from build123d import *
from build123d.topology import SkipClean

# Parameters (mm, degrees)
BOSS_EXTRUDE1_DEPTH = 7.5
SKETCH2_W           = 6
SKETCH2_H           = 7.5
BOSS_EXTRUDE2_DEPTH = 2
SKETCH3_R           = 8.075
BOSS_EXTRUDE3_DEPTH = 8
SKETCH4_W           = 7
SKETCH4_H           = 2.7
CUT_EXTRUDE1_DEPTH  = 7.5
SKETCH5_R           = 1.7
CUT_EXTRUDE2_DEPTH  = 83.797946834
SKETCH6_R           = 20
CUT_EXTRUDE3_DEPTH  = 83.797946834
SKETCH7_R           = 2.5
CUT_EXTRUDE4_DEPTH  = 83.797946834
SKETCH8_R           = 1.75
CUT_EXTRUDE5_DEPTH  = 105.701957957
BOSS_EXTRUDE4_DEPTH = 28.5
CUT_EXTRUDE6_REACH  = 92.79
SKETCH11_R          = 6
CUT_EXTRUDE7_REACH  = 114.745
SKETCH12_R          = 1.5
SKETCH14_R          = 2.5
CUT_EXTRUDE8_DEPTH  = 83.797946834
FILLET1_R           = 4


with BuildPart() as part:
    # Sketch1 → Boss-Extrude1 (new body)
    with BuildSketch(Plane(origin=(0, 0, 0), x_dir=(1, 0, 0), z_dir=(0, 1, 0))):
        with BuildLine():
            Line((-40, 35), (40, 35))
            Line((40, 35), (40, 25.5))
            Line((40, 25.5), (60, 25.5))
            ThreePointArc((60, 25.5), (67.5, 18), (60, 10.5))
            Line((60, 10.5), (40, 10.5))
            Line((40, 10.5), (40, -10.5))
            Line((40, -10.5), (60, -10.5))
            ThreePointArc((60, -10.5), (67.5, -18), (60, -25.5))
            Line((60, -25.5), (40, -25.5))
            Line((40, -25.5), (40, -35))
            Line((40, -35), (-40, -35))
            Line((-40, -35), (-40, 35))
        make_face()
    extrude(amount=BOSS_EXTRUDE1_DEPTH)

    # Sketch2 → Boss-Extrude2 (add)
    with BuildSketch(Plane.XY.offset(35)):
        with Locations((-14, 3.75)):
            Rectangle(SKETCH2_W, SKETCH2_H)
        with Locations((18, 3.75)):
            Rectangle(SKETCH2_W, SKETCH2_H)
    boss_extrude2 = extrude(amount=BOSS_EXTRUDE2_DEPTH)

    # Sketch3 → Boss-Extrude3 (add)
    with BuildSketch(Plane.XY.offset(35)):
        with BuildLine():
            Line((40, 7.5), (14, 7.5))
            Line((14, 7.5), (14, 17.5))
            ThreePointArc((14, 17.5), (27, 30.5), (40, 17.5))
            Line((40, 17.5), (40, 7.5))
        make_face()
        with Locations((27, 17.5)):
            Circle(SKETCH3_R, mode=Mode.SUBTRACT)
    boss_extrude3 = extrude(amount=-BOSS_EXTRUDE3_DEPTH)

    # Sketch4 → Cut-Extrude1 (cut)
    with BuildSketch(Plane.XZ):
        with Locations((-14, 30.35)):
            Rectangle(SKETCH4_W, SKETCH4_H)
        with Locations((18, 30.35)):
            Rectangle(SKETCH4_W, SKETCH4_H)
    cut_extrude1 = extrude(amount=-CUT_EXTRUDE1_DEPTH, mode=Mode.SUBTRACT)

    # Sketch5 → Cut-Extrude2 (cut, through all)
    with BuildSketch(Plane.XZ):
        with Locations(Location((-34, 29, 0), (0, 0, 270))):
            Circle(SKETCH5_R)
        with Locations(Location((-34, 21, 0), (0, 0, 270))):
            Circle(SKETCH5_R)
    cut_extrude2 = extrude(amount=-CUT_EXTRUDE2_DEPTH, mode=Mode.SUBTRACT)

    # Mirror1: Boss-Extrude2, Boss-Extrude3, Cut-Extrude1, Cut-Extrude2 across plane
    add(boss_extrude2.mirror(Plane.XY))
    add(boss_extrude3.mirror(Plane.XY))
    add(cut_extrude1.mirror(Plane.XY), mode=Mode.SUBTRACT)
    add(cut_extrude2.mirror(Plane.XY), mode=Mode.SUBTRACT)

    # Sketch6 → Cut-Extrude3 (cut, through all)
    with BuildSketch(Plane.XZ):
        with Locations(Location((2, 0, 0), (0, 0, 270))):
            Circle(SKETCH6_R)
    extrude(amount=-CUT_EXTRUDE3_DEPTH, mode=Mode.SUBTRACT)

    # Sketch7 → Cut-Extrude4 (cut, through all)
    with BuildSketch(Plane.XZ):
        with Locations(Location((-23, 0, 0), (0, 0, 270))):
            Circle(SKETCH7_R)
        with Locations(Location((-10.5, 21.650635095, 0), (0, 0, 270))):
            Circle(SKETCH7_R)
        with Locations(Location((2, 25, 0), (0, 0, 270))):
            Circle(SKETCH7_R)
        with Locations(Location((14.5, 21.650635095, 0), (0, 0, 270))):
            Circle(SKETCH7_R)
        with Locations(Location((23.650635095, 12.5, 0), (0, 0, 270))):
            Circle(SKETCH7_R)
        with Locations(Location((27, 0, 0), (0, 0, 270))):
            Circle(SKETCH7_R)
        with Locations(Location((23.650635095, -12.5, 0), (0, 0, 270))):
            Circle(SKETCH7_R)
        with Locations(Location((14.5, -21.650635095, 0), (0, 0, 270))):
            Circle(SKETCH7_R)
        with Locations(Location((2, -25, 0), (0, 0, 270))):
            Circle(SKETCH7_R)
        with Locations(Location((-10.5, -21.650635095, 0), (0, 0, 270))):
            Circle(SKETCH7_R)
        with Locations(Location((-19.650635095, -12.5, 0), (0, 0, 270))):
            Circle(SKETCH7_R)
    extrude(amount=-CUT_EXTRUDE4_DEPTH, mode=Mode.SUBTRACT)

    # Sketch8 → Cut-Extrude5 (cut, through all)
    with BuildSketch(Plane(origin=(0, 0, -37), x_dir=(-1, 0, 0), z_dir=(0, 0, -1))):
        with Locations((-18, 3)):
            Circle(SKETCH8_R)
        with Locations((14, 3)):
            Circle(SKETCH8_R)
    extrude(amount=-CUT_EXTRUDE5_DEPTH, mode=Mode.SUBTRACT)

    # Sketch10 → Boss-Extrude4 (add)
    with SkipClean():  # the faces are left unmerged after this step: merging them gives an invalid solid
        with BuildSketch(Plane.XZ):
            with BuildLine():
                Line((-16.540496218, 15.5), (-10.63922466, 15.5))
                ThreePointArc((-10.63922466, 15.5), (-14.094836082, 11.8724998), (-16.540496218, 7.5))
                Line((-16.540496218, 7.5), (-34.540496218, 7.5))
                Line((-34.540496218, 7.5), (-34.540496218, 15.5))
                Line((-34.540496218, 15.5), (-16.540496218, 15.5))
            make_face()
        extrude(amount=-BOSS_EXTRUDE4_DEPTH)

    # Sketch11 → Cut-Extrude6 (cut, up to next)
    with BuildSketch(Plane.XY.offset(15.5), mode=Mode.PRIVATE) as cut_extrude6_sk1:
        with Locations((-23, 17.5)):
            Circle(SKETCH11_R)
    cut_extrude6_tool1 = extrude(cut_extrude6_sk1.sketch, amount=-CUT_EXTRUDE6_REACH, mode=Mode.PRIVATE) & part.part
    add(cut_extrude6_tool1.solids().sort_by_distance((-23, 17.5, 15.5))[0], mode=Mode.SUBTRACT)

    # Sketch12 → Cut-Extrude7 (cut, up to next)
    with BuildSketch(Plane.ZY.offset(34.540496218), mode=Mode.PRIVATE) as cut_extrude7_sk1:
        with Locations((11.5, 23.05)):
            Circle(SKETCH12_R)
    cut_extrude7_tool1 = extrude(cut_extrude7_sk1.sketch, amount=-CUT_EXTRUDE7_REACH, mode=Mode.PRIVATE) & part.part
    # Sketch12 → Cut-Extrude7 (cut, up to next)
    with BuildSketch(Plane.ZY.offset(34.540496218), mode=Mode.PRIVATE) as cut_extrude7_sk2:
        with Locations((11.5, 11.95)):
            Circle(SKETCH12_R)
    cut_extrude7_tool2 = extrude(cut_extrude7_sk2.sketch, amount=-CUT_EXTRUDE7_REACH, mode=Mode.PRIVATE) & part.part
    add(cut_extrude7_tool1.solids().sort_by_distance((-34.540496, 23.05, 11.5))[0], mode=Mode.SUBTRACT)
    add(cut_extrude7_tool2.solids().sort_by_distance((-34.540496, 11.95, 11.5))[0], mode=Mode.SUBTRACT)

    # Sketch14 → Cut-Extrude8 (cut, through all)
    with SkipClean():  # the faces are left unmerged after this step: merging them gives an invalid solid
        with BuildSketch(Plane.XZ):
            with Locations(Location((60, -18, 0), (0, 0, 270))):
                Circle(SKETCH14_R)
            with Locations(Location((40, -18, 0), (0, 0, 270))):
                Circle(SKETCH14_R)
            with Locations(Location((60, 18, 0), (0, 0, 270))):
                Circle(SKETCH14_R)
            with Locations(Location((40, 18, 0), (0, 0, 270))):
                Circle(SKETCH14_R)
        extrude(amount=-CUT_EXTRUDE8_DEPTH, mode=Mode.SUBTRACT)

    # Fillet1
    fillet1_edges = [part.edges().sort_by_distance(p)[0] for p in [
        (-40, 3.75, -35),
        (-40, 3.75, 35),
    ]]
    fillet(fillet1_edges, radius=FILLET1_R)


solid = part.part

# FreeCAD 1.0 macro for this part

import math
import FreeCAD as App
import Part
import Sketcher
from FreeCAD import Vector


def edges_at(feature, points):
    """Names of the edges that pass closest to the given points."""
    edges = feature.Shape.Edges
    near = lambda p: min(range(len(edges)), key=lambda i: edges[i].distToShape(Part.Vertex(*p))[0])
    return sorted({f"Edge{near(p) + 1}" for p in points})


def add_polygon(sketch, points):
    """Adds a closed chain of lines whose ends are joined by coincident constraints."""
    first, n = sketch.GeometryCount, len(points)
    for a, b in zip(points, points[1:] + points[:1]):
        sketch.addGeometry(Part.LineSegment(App.Vector(*a, 0), App.Vector(*b, 0)), False)
    for i in range(n):
        sketch.addConstraint(Sketcher.Constraint("Coincident", first + i, 2, first + (i + 1) % n, 1))

doc = App.newDocument("Part")
params = doc.addObject("Spreadsheet::Sheet", "Params")
for row, (alias, value) in enumerate([
    ("sketch1_radius", "7.5 mm"),
    ("sketch1_width", "80 mm"),
    ("sketch1_width2", "20 mm"),
    ("sketch1_height", "70 mm"),
    ("sketch1_height2", "21 mm"),
    ("pad1_length", "7.5 mm"),
    ("sketch2_width", "6 mm"),
    ("sketch2_height", "7.5 mm"),
    ("pad2_length", "2 mm"),
    ("sketch3_radius", "13 mm"),
    ("sketch3_diameter", "16.15 mm"),
    ("sketch3_height", "10 mm"),
    ("pad3_length", "8 mm"),
    ("sketch4_width", "7 mm"),
    ("sketch4_height", "2.7 mm"),
    ("pocket1_length", "7.5 mm"),
    ("sketch5_diameter", "3.4 mm"),
    ("sketch6_diameter", "40 mm"),
    ("sketch7_diameter", "5 mm"),
    ("sketch8_diameter", "3.5 mm"),
    ("sketch9_radius", "20 mm"),
    ("sketch9_width", "18 mm"),
    ("sketch9_height", "8 mm"),
    ("pad4_length", "28.5 mm"),
    ("sketch10_diameter", "12 mm"),
    ("sketch11_diameter", "3 mm"),
    ("pocket7_length", "21.341812 mm"),
    ("sketch12_diameter", "3 mm"),
    ("pocket8_length", "21.341812 mm"),
    ("sketch13_diameter", "5 mm"),
    ("fillet_radius", "4 mm"),
], start=1):
    params.set(f"A{row}", alias)
    params.set(f"B{row}", "=" + value)
    params.setAlias(f"B{row}", alias)

body = doc.addObject("PartDesign::Body", "Body")

# Sketch on XZ plane
sketch1 = body.newObject("Sketcher::SketchObject", "Sketch")
sketch1.AttachmentSupport = (doc.getObject("XZ_Plane"), [""])
sketch1.MapMode = "FlatFace"
sketch1.addGeometry([
    Part.LineSegment(Vector(40, -35, 0), Vector(-40, -35, 0)),  # 0
    Part.LineSegment(Vector(-40, -35, 0), Vector(-40, 35, 0)),  # 1
    Part.LineSegment(Vector(-40, 35, 0), Vector(40, 35, 0)),  # 2
    Part.LineSegment(Vector(40, 35, 0), Vector(40, 26, 0)),  # 3
    Part.LineSegment(Vector(40, 26, 0), Vector(60, 26, 0)),  # 4
    Part.ArcOfCircle(Part.Circle(Vector(60, 18, 0), Vector(0, 0, 1), 8), math.radians(-90), math.radians(90)),  # 5
    Part.LineSegment(Vector(60, 10, 0), Vector(40, 10, 0)),  # 6
    Part.LineSegment(Vector(40, 10, 0), Vector(40, -10, 0)),  # 7
    Part.LineSegment(Vector(40, -10, 0), Vector(60, -10, 0)),  # 8
    Part.ArcOfCircle(Part.Circle(Vector(60, -18, 0), Vector(0, 0, 1), 8), math.radians(-90), math.radians(90)),  # 9
    Part.LineSegment(Vector(60, -26, 0), Vector(40, -26, 0)),  # 10
    Part.LineSegment(Vector(40, -26, 0), Vector(40, -35, 0)),  # 11
], False)
sketch1.addConstraint([
    Sketcher.Constraint("Coincident", 0, 2, 1, 1),
    Sketcher.Constraint("Coincident", 1, 2, 2, 1),
    Sketcher.Constraint("Coincident", 2, 2, 3, 1),
    Sketcher.Constraint("Coincident", 3, 2, 4, 1),
    Sketcher.Constraint("Tangent", 4, 2, 5, 2),
    Sketcher.Constraint("Tangent", 5, 1, 6, 1),
    Sketcher.Constraint("Coincident", 6, 2, 7, 1),
    Sketcher.Constraint("Coincident", 7, 2, 8, 1),
    Sketcher.Constraint("Tangent", 8, 2, 9, 2),
    Sketcher.Constraint("Tangent", 9, 1, 10, 1),
    Sketcher.Constraint("Coincident", 10, 2, 11, 1),
    Sketcher.Constraint("Coincident", 11, 2, 0, 1),
    Sketcher.Constraint("Horizontal", 0),
    Sketcher.Constraint("Vertical", 1),
    Sketcher.Constraint("Horizontal", 2),
    Sketcher.Constraint("Vertical", 3),
    Sketcher.Constraint("Horizontal", 4),
    Sketcher.Constraint("Horizontal", 6),
    Sketcher.Constraint("Vertical", 7),
    Sketcher.Constraint("Horizontal", 8),
    Sketcher.Constraint("Horizontal", 10),
    Sketcher.Constraint("Vertical", 11),
    Sketcher.Constraint("Equal", 5, 9),
    Sketcher.Constraint("Symmetric", 0, 2, 2, 2, -1, 1),
    Sketcher.Constraint("Symmetric", 5, 3, 9, 3, -1),
    Sketcher.Constraint("Vertical", 3, 2, 6, 2),
    Sketcher.Constraint("Vertical", 7, 2, 10, 2),
    Sketcher.Constraint("Radius", 5, 7.5),
    Sketcher.Constraint("DistanceX", 0, 2, 0, 1, 80.0),
    Sketcher.Constraint("DistanceX", 4, 1, 4, 2, 20.0),
    Sketcher.Constraint("DistanceY", 1, 1, 1, 2, 70.0),
    Sketcher.Constraint("DistanceY", 7, 2, 7, 1, 21.0),
])
sketch1.setExpression("Constraints[27]", "Params.sketch1_radius")
sketch1.setExpression("Constraints[28]", "Params.sketch1_width")
sketch1.setExpression("Constraints[29]", "Params.sketch1_width2")
sketch1.setExpression("Constraints[30]", "Params.sketch1_height")
sketch1.setExpression("Constraints[31]", "Params.sketch1_height2")
pad1 = body.newObject("PartDesign::Pad", "Pad")
pad1.Profile = sketch1
pad1.setExpression("Length", "Params.pad1_length")
pad1.Reversed = True

# Sketch on XY plane
sketch2 = body.newObject("Sketcher::SketchObject", "Sketch001")
sketch2.AttachmentSupport = (doc.getObject("XY_Plane"), [""])
sketch2.MapMode = "FlatFace"
sketch2.AttachmentOffset = App.Placement(Vector(0, 0, 35), App.Rotation())
add_polygon(sketch2, [(-17, 8), (-17, 0), (-11, 0), (-11, 8)])  # lines 0-3
add_polygon(sketch2, [(15, 8), (15, 0), (21, 0), (21, 8)])  # lines 4-7
sketch2.addConstraint([
    Sketcher.Constraint("Vertical", 0),
    Sketcher.Constraint("Horizontal", 1),
    Sketcher.Constraint("Vertical", 2),
    Sketcher.Constraint("Horizontal", 3),
    Sketcher.Constraint("Vertical", 4),
    Sketcher.Constraint("Horizontal", 5),
    Sketcher.Constraint("Vertical", 6),
    Sketcher.Constraint("Horizontal", 7),
    Sketcher.Constraint("PointOnObject", 0, 2, -1),
    Sketcher.Constraint("PointOnObject", 4, 2, -1),
    Sketcher.Constraint("Horizontal", 3, 2, 6, 2),
    Sketcher.Constraint("Equal", 3, 5),
    Sketcher.Constraint("DistanceX", 1, 1, 1, 2, 6.0),
    Sketcher.Constraint("DistanceY", 0, 2, 0, 1, 7.5),
    Sketcher.Constraint("DistanceX", 0, 2, -1, 1, 17.0),
    Sketcher.Constraint("DistanceX", -1, 1, 4, 2, 15.0),
])
sketch2.setExpression("Constraints[20]", "Params.sketch2_width")
sketch2.setExpression("Constraints[21]", "Params.sketch2_height")
pad2 = body.newObject("PartDesign::Pad", "Pad001")
pad2.Profile = sketch2
pad2.setExpression("Length", "Params.pad2_length")

# Sketch on XY plane
sketch3 = body.newObject("Sketcher::SketchObject", "Sketch002")
sketch3.AttachmentSupport = (doc.getObject("XY_Plane"), [""])
sketch3.MapMode = "FlatFace"
sketch3.AttachmentOffset = App.Placement(Vector(0, 0, 35), App.Rotation())
sketch3.addGeometry([
    Part.LineSegment(Vector(14, 8, 0), Vector(40, 8, 0)),  # 0
    Part.LineSegment(Vector(40, 8, 0), Vector(40, 18, 0)),  # 1
    Part.ArcOfCircle(Part.Circle(Vector(27, 18, 0), Vector(0, 0, 1), 13), math.radians(0), math.radians(180)),  # 2
    Part.LineSegment(Vector(14, 18, 0), Vector(14, 8, 0)),  # 3
    Part.Circle(Vector(27, 18, 0), Vector(0, 0, 1), 8),  # 4
], False)
sketch3.addConstraint([
    Sketcher.Constraint("Coincident", 0, 2, 1, 1),
    Sketcher.Constraint("Tangent", 1, 2, 2, 1),
    Sketcher.Constraint("Tangent", 2, 2, 3, 1),
    Sketcher.Constraint("Coincident", 3, 2, 0, 1),
    Sketcher.Constraint("Horizontal", 0),
    Sketcher.Constraint("Vertical", 1),
    Sketcher.Constraint("Vertical", 3),
    Sketcher.Constraint("Coincident", 4, 3, 2, 3),
    Sketcher.Constraint("Radius", 2, 13.0),
    Sketcher.Constraint("Diameter", 4, 16.15),
    Sketcher.Constraint("DistanceY", 1, 1, 1, 2, 10.0),
    Sketcher.Constraint("DistanceX", -1, 1, 2, 3, 27.0),
    Sketcher.Constraint("DistanceY", -1, 1, 2, 3, 17.5),
])
sketch3.setExpression("Constraints[8]", "Params.sketch3_radius")
sketch3.setExpression("Constraints[9]", "Params.sketch3_diameter")
sketch3.setExpression("Constraints[10]", "Params.sketch3_height")
pad3 = body.newObject("PartDesign::Pad", "Pad002")
pad3.Profile = sketch3
pad3.setExpression("Length", "Params.pad3_length")
pad3.Reversed = True

# Sketch on XZ plane
sketch4 = body.newObject("Sketcher::SketchObject", "Sketch003")
sketch4.AttachmentSupport = (doc.getObject("XZ_Plane"), [""])
sketch4.MapMode = "FlatFace"
add_polygon(sketch4, [(-17.5, 31.7), (-17.5, 29), (-10.5, 29), (-10.5, 31.7)])  # lines 0-3
add_polygon(sketch4, [(14.5, 31.7), (14.5, 29), (21.5, 29), (21.5, 31.7)])  # lines 4-7
sketch4.addConstraint([
    Sketcher.Constraint("Vertical", 0),
    Sketcher.Constraint("Horizontal", 1),
    Sketcher.Constraint("Vertical", 2),
    Sketcher.Constraint("Horizontal", 3),
    Sketcher.Constraint("Vertical", 4),
    Sketcher.Constraint("Horizontal", 5),
    Sketcher.Constraint("Vertical", 6),
    Sketcher.Constraint("Horizontal", 7),
    Sketcher.Constraint("Horizontal", 1, 2, 4, 2),
    Sketcher.Constraint("Horizontal", 3, 2, 6, 2),
    Sketcher.Constraint("Equal", 3, 5),
    Sketcher.Constraint("DistanceX", 1, 1, 1, 2, 7.0),
    Sketcher.Constraint("DistanceY", 0, 2, 0, 1, 2.7),
    Sketcher.Constraint("DistanceY", -1, 1, 0, 2, 29.0),
    Sketcher.Constraint("DistanceX", 1, 2, 4, 2, 25.0),
    Sketcher.Constraint("DistanceX", 0, 2, -1, 1, 17.5),
])
sketch4.setExpression("Constraints[19]", "Params.sketch4_width")
sketch4.setExpression("Constraints[20]", "Params.sketch4_height")
pocket1 = body.newObject("PartDesign::Pocket", "Pocket")
pocket1.Profile = sketch4
pocket1.setExpression("Length", "Params.pocket1_length")

# Sketch on XZ plane
sketch5 = body.newObject("Sketcher::SketchObject", "Sketch004")
sketch5.AttachmentSupport = (doc.getObject("XZ_Plane"), [""])
sketch5.MapMode = "FlatFace"
sketch5.addGeometry([
    Part.Circle(Vector(-34, 29, 0), Vector(0, 0, 1), 1.7),
    Part.Circle(Vector(-34, 21, 0), Vector(0, 0, 1), 1.7),
], False)
sketch5.addConstraint([
    Sketcher.Constraint("Equal", 0, 1),
    Sketcher.Constraint("Vertical", 0, 3, 1, 3),
    Sketcher.Constraint("Diameter", 0, 3.4),
    Sketcher.Constraint("DistanceX", 0, 3, -1, 1, 34.0),
    Sketcher.Constraint("DistanceY", -1, 1, 0, 3, 29.0),
    Sketcher.Constraint("DistanceY", -1, 1, 1, 3, 21.0),
])
sketch5.setExpression("Constraints[2]", "Params.sketch5_diameter")
pocket2 = body.newObject("PartDesign::Pocket", "Pocket001")
pocket2.Profile = sketch5
pocket2.Type = "ThroughAll"
doc.recompute()

mirrored = body.newObject("PartDesign::Mirrored", "Mirrored")
mirrored.Originals = [pad2, pad3, pocket1, pocket2]
mirrored.MirrorPlane = (doc.getObject("XY_Plane"), [""])
body.Tip = mirrored

# Sketch on XZ plane
sketch6 = body.newObject("Sketcher::SketchObject", "Sketch005")
sketch6.AttachmentSupport = (doc.getObject("XZ_Plane"), [""])
sketch6.MapMode = "FlatFace"
sketch6.addGeometry(Part.Circle(Vector(2, 0, 0), Vector(0, 0, 1), 20), False)
sketch6.addConstraint([
    Sketcher.Constraint("PointOnObject", 0, 3, -1),
    Sketcher.Constraint("Diameter", 0, 40.0),
    Sketcher.Constraint("DistanceX", -1, 1, 0, 3, 2.0),
])
sketch6.setExpression("Constraints[1]", "Params.sketch6_diameter")
pocket3 = body.newObject("PartDesign::Pocket", "Pocket002")
pocket3.Profile = sketch6
pocket3.Type = "ThroughAll"

# Sketch on XZ plane
sketch7 = body.newObject("Sketcher::SketchObject", "Sketch006")
sketch7.AttachmentSupport = (doc.getObject("XZ_Plane"), [""])
sketch7.MapMode = "FlatFace"
sketch7.addGeometry([
    Part.Circle(Vector(-23, 0, 0), Vector(0, 0, 1), 2.5),  # 0
    Part.Circle(Vector(-10.5, 21.7, 0), Vector(0, 0, 1), 2.5),  # 1
    Part.Circle(Vector(2, 25, 0), Vector(0, 0, 1), 2.5),  # 2
    Part.Circle(Vector(14.5, 21.7, 0), Vector(0, 0, 1), 2.5),  # 3
    Part.Circle(Vector(23.7, 12.5, 0), Vector(0, 0, 1), 2.5),  # 4
    Part.Circle(Vector(27, 0, 0), Vector(0, 0, 1), 2.5),  # 5
    Part.Circle(Vector(23.7, -12.5, 0), Vector(0, 0, 1), 2.5),  # 6
    Part.Circle(Vector(14.5, -21.7, 0), Vector(0, 0, 1), 2.5),  # 7
    Part.Circle(Vector(2, -25, 0), Vector(0, 0, 1), 2.5),  # 8
    Part.Circle(Vector(-10.5, -21.7, 0), Vector(0, 0, 1), 2.5),  # 9
    Part.Circle(Vector(-19.7, -12.5, 0), Vector(0, 0, 1), 2.5),  # 10
], False)
sketch7.addConstraint([
    Sketcher.Constraint("Equal", 0, 1),
    Sketcher.Constraint("Equal", 1, 2),
    Sketcher.Constraint("Equal", 2, 3),
    Sketcher.Constraint("Equal", 3, 4),
    Sketcher.Constraint("Equal", 4, 5),
    Sketcher.Constraint("Equal", 5, 6),
    Sketcher.Constraint("Equal", 6, 7),
    Sketcher.Constraint("Equal", 7, 8),
    Sketcher.Constraint("Equal", 8, 9),
    Sketcher.Constraint("Equal", 9, 10),
    Sketcher.Constraint("Symmetric", 4, 3, 6, 3, -1),
    Sketcher.Constraint("Symmetric", 3, 3, 7, 3, -1),
    Sketcher.Constraint("Symmetric", 2, 3, 8, 3, -1),
    Sketcher.Constraint("Symmetric", 1, 3, 9, 3, -1),
    Sketcher.Constraint("PointOnObject", 0, 3, -1),
    Sketcher.Constraint("PointOnObject", 5, 3, -1),
    Sketcher.Constraint("Horizontal", 1, 3, 3, 3),
    Sketcher.Constraint("Horizontal", 6, 3, 10, 3),
    Sketcher.Constraint("Diameter", 0, 5.0),
    Sketcher.Constraint("DistanceX", 0, 3, -1, 1, 23.0),
    Sketcher.Constraint("DistanceX", -1, 1, 2, 3, 2.0),
    Sketcher.Constraint("DistanceY", -1, 1, 2, 3, 25.0),
    Sketcher.Constraint("DistanceX", -1, 1, 5, 3, 27.0),
    Sketcher.Constraint("DistanceX", 1, 3, 3, 3, 25.0),
    Sketcher.Constraint("DistanceY", 6, 3, 4, 3, 25.0),
    Sketcher.Constraint("DistanceX", 1, 3, -1, 1, 10.5),
    Sketcher.Constraint("DistanceY", 7, 3, 3, 3, 43.30127),
    Sketcher.Constraint("DistanceX", -1, 1, 4, 3, 23.650635),
    Sketcher.Constraint("DistanceX", 10, 3, -1, 1, 19.650635),
])
sketch7.setExpression("Constraints[18]", "Params.sketch7_diameter")
pocket4 = body.newObject("PartDesign::Pocket", "Pocket003")
pocket4.Profile = sketch7
pocket4.Type = "ThroughAll"

# Sketch on XY plane
sketch8 = body.newObject("Sketcher::SketchObject", "Sketch007")
sketch8.AttachmentSupport = (doc.getObject("XY_Plane"), [""])
sketch8.MapMode = "FlatFace"
sketch8.AttachmentOffset = App.Placement(Vector(0, 0, -37), App.Rotation())
sketch8.addGeometry([
    Part.Circle(Vector(18, 3, 0), Vector(0, 0, 1), 1.8),
    Part.Circle(Vector(-14, 3, 0), Vector(0, 0, 1), 1.8),
], False)
sketch8.addConstraint([
    Sketcher.Constraint("Equal", 0, 1),
    Sketcher.Constraint("Horizontal", 0, 3, 1, 3),
    Sketcher.Constraint("Diameter", 0, 3.5),
    Sketcher.Constraint("DistanceX", -1, 1, 0, 3, 18.0),
    Sketcher.Constraint("DistanceY", -1, 1, 0, 3, 3.0),
    Sketcher.Constraint("DistanceX", 1, 3, -1, 1, 14.0),
])
sketch8.setExpression("Constraints[2]", "Params.sketch8_diameter")
pocket5 = body.newObject("PartDesign::Pocket", "Pocket004")
pocket5.Profile = sketch8
pocket5.Type = "ThroughAll"
pocket5.Reversed = True

# Sketch on XZ plane
sketch9 = body.newObject("Sketcher::SketchObject", "Sketch008")
sketch9.AttachmentSupport = (doc.getObject("XZ_Plane"), [""])
sketch9.MapMode = "FlatFace"
sketch9.addGeometry([
    Part.LineSegment(Vector(-11, 16, 0), Vector(-35, 16, 0)),
    Part.LineSegment(Vector(-35, 16, 0), Vector(-35, 8, 0)),
    Part.LineSegment(Vector(-35, 8, 0), Vector(-17, 8, 0)),
    Part.ArcOfCircle(Part.Circle(Vector(2, 0, 0), Vector(0, 0, 1), 20), math.radians(129), math.radians(158)),
], False)
sketch9.addConstraint([
    Sketcher.Constraint("Coincident", 0, 2, 1, 1),
    Sketcher.Constraint("Coincident", 1, 2, 2, 1),
    Sketcher.Constraint("Coincident", 2, 2, 3, 2),
    Sketcher.Constraint("Coincident", 3, 1, 0, 1),
    Sketcher.Constraint("Horizontal", 0),
    Sketcher.Constraint("Vertical", 1),
    Sketcher.Constraint("Horizontal", 2),
    Sketcher.Constraint("PointOnObject", 3, 3, -1),
    Sketcher.Constraint("Radius", 3, 20.0),
    Sketcher.Constraint("DistanceX", 2, 1, 2, 2, 18.0),
    Sketcher.Constraint("DistanceY", 1, 2, 1, 1, 8.0),
    Sketcher.Constraint("DistanceX", -1, 1, 3, 3, 2.0),
    Sketcher.Constraint("DistanceY", -1, 1, 0, 2, 15.5),
])
sketch9.setExpression("Constraints[8]", "Params.sketch9_radius")
sketch9.setExpression("Constraints[9]", "Params.sketch9_width")
sketch9.setExpression("Constraints[10]", "Params.sketch9_height")
pad4 = body.newObject("PartDesign::Pad", "Pad003")
pad4.Profile = sketch9
pad4.setExpression("Length", "Params.pad4_length")
pad4.Reversed = True

# Sketch on XY plane
sketch10 = body.newObject("Sketcher::SketchObject", "Sketch009")
sketch10.AttachmentSupport = (doc.getObject("XY_Plane"), [""])
sketch10.MapMode = "FlatFace"
sketch10.AttachmentOffset = App.Placement(Vector(0, 0, 15.5), App.Rotation())
sketch10.addGeometry(Part.Circle(Vector(-23, 18, 0), Vector(0, 0, 1), 6), False)
sketch10.addConstraint([
    Sketcher.Constraint("Diameter", 0, 12.0),
    Sketcher.Constraint("DistanceX", 0, 3, -1, 1, 23.0),
    Sketcher.Constraint("DistanceY", -1, 1, 0, 3, 17.5),
])
sketch10.setExpression("Constraints[0]", "Params.sketch10_diameter")
pocket6 = body.newObject("PartDesign::Pocket", "Pocket005")
pocket6.Profile = sketch10
pocket6.Type = "UpToFirst"

# Sketch on YZ plane
sketch11 = body.newObject("Sketcher::SketchObject", "Sketch010")
sketch11.AttachmentSupport = (doc.getObject("YZ_Plane"), [""])
sketch11.MapMode = "FlatFace"
sketch11.AttachmentOffset = App.Placement(Vector(0, 0, -34.540496), App.Rotation())
sketch11.addGeometry(Part.Circle(Vector(23.1, 11.5, 0), Vector(0, 0, 1), 1.5), False)
sketch11.addConstraint([
    Sketcher.Constraint("Diameter", 0, 3.0),
    Sketcher.Constraint("DistanceY", -1, 1, 0, 3, 11.5),
    Sketcher.Constraint("DistanceX", -1, 1, 0, 3, 23.05),
])
sketch11.setExpression("Constraints[0]", "Params.sketch11_diameter")
pocket7 = body.newObject("PartDesign::Pocket", "Pocket006")
pocket7.Profile = sketch11
pocket7.setExpression("Length", "Params.pocket7_length")
pocket7.Reversed = True

# Sketch on YZ plane
sketch12 = body.newObject("Sketcher::SketchObject", "Sketch011")
sketch12.AttachmentSupport = (doc.getObject("YZ_Plane"), [""])
sketch12.MapMode = "FlatFace"
sketch12.AttachmentOffset = App.Placement(Vector(0, 0, -34.540496), App.Rotation())
sketch12.addGeometry(Part.Circle(Vector(11.9, 11.5, 0), Vector(0, 0, 1), 1.5), False)
sketch12.addConstraint([
    Sketcher.Constraint("Diameter", 0, 3.0),
    Sketcher.Constraint("DistanceY", -1, 1, 0, 3, 11.5),
    Sketcher.Constraint("DistanceX", -1, 1, 0, 3, 11.95),
])
sketch12.setExpression("Constraints[0]", "Params.sketch12_diameter")
pocket8 = body.newObject("PartDesign::Pocket", "Pocket007")
pocket8.Profile = sketch12
pocket8.setExpression("Length", "Params.pocket8_length")
pocket8.Reversed = True

# Sketch on XZ plane
sketch13 = body.newObject("Sketcher::SketchObject", "Sketch012")
sketch13.AttachmentSupport = (doc.getObject("XZ_Plane"), [""])
sketch13.MapMode = "FlatFace"
sketch13.addGeometry([
    Part.Circle(Vector(60, -18, 0), Vector(0, 0, 1), 2.5),
    Part.Circle(Vector(40, -18, 0), Vector(0, 0, 1), 2.5),
    Part.Circle(Vector(60, 18, 0), Vector(0, 0, 1), 2.5),
    Part.Circle(Vector(40, 18, 0), Vector(0, 0, 1), 2.5),
], False)
sketch13.addConstraint([
    Sketcher.Constraint("Equal", 0, 1),
    Sketcher.Constraint("Equal", 1, 2),
    Sketcher.Constraint("Equal", 2, 3),
    Sketcher.Constraint("Symmetric", 0, 3, 2, 3, -1),
    Sketcher.Constraint("Symmetric", 1, 3, 3, 3, -1),
    Sketcher.Constraint("Horizontal", 0, 3, 1, 3),
    Sketcher.Constraint("Diameter", 0, 5.0),
    Sketcher.Constraint("DistanceX", -1, 1, 0, 3, 60.0),
    Sketcher.Constraint("DistanceY", 0, 3, -1, 1, 18.0),
    Sketcher.Constraint("DistanceX", -1, 1, 1, 3, 40.0),
])
sketch13.setExpression("Constraints[6]", "Params.sketch13_diameter")
pocket9 = body.newObject("PartDesign::Pocket", "Pocket008")
pocket9.Profile = sketch13
pocket9.Type = "ThroughAll"
doc.recompute()

fillet = body.newObject("PartDesign::Fillet", "Fillet")
fillet.Base = (pocket9, edges_at(pocket9, [(-40, 3.75, -35), (-40, 3.75, 35)]))
fillet.setExpression("Radius", "Params.fillet_radius")

doc.recompute()
